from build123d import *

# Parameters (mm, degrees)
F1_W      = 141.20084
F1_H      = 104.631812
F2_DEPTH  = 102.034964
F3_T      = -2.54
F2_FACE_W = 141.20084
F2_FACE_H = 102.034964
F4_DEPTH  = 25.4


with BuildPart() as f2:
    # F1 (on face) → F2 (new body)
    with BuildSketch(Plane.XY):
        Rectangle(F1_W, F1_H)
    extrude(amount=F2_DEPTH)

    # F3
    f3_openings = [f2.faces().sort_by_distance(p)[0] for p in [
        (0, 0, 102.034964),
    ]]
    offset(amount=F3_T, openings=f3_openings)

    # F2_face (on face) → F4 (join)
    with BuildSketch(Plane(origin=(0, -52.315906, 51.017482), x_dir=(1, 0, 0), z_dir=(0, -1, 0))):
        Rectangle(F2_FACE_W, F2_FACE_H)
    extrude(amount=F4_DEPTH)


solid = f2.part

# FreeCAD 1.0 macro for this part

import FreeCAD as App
import Part
import Sketcher

V = App.Vector
Q = App.Units.Quantity


def faces_at(feature, points):
    """Names of the faces that lie closest to the given points."""
    faces = feature.Shape.Faces
    near = lambda p: min(range(len(faces)), key=lambda i: faces[i].distToShape(Part.Vertex(*p))[0])
    return sorted({f"Face{near(p) + 1}" for p in points})

doc = App.newDocument("Part")
body = doc.addObject("PartDesign::Body", "Body")

# Sketch on XY plane
sketch1 = doc.addObject("Sketcher::SketchObject", "Sketch")
body.addObject(sketch1)
sketch1.AttachmentSupport = (doc.XY_Plane, [""])
sketch1.MapMode = "FlatFace"
sketch1.addGeometry([
    Part.LineSegment(V(-70.60042, 52.315906, 0), V(-70.60042, -52.315906, 0)),
    Part.LineSegment(V(-70.60042, -52.315906, 0), V(70.60042, -52.315906, 0)),
    Part.LineSegment(V(70.60042, -52.315906, 0), V(70.60042, 52.315906, 0)),
    Part.LineSegment(V(70.60042, 52.315906, 0), V(-70.60042, 52.315906, 0)),
], False)
sketch1.addConstraint([
    Sketcher.Constraint("Coincident", 0, 2, 1, 1),
    Sketcher.Constraint("Coincident", 1, 2, 2, 1),
    Sketcher.Constraint("Coincident", 2, 2, 3, 1),
    Sketcher.Constraint("Coincident", 3, 2, 0, 1),
    Sketcher.Constraint("Vertical", 0),
    Sketcher.Constraint("Horizontal", 1),
    Sketcher.Constraint("Vertical", 2),
    Sketcher.Constraint("Horizontal", 3),
    Sketcher.Constraint("Symmetric", 0, 2, 2, 2, -1, 1),
    Sketcher.Constraint("DistanceX", 1, 1, 1, 2, 141.20084),
    Sketcher.Constraint("DistanceY", 0, 2, 0, 1, 104.631812),
])
pad1 = doc.addObject("PartDesign::Pad", "Pad")
body.addObject(pad1)
pad1.Profile = sketch1
pad1.Length = 102.034964
doc.recompute()

thickness = doc.addObject("PartDesign::Thickness", "Thickness")
body.addObject(thickness)
thickness.Base = (pad1, faces_at(pad1, [(0, 0, 102.035)]))
thickness.Value = Q("0.1 in")
thickness.Reversed = True
thickness.Join = "Arc"

# Sketch on XZ plane
sketch2 = doc.addObject("Sketcher::SketchObject", "Sketch001")
body.addObject(sketch2)
sketch2.AttachmentSupport = (doc.XZ_Plane, [""])
sketch2.MapMode = "FlatFace"
sketch2.AttachmentOffset = App.Placement(V(0, 0, 52.315906), App.Rotation())
sketch2.addGeometry([
    Part.LineSegment(V(-70.60042, 102.034964, 0), V(-70.60042, 0, 0)),
    Part.LineSegment(V(-70.60042, 0, 0), V(70.60042, 0, 0)),
    Part.LineSegment(V(70.60042, 0, 0), V(70.60042, 102.034964, 0)),
    Part.LineSegment(V(70.60042, 102.034964, 0), V(-70.60042, 102.034964, 0)),
], False)
sketch2.addConstraint([
    Sketcher.Constraint("Coincident", 0, 2, 1, 1),
    Sketcher.Constraint("Coincident", 1, 2, 2, 1),
    Sketcher.Constraint("Coincident", 2, 2, 3, 1),
    Sketcher.Constraint("Coincident", 3, 2, 0, 1),
    Sketcher.Constraint("Vertical", 0),
    Sketcher.Constraint("Horizontal", 1),
    Sketcher.Constraint("Vertical", 2),
    Sketcher.Constraint("Horizontal", 3),
    Sketcher.Constraint("Symmetric", 0, 2, 1, 2, -1, 1),
    Sketcher.Constraint("DistanceX", 1, 1, 1, 2, 141.20084),
    Sketcher.Constraint("DistanceY", 0, 2, 0, 1, 102.034964),
])
pad2 = doc.addObject("PartDesign::Pad", "Pad001")
body.addObject(pad2)
pad2.Profile = sketch2
pad2.Length = Q("1 in")

doc.recompute()
